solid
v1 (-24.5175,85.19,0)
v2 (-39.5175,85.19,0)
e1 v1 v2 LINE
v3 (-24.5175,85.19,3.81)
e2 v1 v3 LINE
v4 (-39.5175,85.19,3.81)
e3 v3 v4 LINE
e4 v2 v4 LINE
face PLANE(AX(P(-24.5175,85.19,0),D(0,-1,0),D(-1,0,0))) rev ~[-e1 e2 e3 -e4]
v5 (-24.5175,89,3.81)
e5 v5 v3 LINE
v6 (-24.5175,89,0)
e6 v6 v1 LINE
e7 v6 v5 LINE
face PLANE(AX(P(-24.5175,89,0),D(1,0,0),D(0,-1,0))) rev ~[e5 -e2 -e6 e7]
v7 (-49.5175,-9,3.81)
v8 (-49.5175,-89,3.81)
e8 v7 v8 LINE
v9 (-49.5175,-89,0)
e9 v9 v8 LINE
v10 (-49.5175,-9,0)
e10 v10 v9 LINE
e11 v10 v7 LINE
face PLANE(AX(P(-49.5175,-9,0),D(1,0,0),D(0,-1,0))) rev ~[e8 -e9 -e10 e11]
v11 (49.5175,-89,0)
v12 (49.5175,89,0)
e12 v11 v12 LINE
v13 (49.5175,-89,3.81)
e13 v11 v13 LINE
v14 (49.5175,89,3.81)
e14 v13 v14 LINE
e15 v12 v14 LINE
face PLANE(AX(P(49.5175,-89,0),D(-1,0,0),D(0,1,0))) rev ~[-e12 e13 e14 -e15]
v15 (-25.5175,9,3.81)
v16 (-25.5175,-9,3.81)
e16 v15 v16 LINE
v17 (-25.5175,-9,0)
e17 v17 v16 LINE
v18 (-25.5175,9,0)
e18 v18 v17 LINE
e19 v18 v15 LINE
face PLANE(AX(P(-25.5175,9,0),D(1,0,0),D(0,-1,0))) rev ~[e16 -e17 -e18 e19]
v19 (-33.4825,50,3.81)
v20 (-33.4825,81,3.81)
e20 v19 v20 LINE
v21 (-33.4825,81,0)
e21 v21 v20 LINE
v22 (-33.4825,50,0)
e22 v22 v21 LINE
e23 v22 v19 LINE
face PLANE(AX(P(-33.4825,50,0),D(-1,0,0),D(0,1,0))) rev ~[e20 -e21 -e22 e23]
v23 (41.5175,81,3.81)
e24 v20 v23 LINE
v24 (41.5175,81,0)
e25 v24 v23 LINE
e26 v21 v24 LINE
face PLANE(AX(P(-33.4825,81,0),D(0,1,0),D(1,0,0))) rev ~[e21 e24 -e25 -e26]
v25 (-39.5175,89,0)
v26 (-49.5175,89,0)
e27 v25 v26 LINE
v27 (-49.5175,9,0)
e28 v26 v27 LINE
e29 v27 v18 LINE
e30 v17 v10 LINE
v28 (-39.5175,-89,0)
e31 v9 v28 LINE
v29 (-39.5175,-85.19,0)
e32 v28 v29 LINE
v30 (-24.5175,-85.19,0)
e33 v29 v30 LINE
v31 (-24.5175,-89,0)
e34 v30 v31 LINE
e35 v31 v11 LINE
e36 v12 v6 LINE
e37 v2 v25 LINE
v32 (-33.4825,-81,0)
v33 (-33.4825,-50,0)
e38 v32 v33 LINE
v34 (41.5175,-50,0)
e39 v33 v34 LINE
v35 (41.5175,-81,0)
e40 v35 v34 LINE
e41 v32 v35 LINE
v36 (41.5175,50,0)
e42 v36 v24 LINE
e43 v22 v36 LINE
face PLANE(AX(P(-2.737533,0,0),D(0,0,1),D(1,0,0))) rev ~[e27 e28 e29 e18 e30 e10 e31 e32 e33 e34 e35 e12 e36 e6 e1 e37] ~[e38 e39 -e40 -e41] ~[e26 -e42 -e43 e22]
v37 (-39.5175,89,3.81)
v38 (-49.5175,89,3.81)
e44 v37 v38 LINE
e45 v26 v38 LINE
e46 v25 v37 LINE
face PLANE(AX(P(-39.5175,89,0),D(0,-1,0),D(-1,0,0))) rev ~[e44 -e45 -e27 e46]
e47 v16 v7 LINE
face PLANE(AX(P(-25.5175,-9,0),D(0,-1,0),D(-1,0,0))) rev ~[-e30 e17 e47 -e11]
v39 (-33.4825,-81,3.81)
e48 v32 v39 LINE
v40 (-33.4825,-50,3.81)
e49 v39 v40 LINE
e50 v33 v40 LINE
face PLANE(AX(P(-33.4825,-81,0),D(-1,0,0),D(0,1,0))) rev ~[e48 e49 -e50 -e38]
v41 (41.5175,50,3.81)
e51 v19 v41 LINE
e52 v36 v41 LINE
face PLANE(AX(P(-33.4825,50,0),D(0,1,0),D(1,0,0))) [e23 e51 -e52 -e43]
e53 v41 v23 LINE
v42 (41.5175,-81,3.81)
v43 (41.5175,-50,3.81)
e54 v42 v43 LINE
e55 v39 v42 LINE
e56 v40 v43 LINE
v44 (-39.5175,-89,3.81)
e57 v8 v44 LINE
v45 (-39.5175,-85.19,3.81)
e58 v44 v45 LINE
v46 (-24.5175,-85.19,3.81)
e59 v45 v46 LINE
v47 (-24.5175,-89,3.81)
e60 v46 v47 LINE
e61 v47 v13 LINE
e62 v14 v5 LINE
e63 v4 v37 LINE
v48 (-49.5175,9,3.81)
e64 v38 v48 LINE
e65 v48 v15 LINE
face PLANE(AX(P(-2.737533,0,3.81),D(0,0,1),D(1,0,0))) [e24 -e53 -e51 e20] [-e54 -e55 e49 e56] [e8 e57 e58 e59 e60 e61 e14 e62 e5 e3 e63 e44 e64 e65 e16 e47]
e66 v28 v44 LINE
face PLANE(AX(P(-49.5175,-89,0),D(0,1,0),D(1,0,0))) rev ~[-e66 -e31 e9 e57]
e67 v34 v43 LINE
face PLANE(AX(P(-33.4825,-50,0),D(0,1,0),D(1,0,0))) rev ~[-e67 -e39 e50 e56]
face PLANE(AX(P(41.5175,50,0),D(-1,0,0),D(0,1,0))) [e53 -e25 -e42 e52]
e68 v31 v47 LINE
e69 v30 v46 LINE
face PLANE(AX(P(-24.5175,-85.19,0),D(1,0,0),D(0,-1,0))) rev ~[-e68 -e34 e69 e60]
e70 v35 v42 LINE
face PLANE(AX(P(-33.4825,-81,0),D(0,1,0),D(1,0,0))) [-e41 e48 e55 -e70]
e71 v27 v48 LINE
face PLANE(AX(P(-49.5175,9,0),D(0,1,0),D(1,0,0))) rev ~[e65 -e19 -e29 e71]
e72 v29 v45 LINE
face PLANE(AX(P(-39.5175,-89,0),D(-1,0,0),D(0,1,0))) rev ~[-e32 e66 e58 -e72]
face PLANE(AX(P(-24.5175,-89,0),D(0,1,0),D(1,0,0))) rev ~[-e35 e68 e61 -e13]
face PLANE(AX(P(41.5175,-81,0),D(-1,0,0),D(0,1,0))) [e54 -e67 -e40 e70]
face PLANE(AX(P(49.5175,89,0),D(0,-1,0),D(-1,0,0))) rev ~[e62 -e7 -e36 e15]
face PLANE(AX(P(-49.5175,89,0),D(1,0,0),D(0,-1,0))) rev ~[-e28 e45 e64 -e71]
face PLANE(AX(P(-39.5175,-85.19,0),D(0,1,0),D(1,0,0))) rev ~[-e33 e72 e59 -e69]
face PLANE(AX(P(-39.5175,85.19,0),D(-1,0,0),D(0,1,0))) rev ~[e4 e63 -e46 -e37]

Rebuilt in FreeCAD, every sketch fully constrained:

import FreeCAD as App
import Part
import Sketcher
from FreeCAD import Vector
Q = App.Units.Quantity


def add_polygon(sketch, points):
    """Adds a closed chain of lines whose ends are joined by coincident constraints."""
    first, n = sketch.GeometryCount, len(points)
    for a, b in zip(points, points[1:] + points[:1]):
        sketch.addGeometry(Part.LineSegment(App.Vector(*a, 0), App.Vector(*b, 0)), False)
    for i in range(n):
        sketch.addConstraint(Sketcher.Constraint("Coincident", first + i, 2, first + (i + 1) % n, 1))

doc = App.newDocument("Part")
body = doc.addObject("PartDesign::Body", "Body")

# Sketch on XY plane
sketch1 = body.newObject("Sketcher::SketchObject", "Sketch")
sketch1.AttachmentSupport = (doc.getObject("XY_Plane"), [""])
sketch1.MapMode = "FlatFace"
add_polygon(sketch1, [(49.5, 89), (-24.5, 89), (-24.5, 85.2), (-39.5, 85.2), (-39.5, 89), (-49.5, 89), (-49.5, 9), (-25.5, 9), (-25.5, -9), (-49.5, -9), (-49.5, -89), (-39.5, -89), (-39.5, -85.2), (-24.5, -85.2), (-24.5, -89), (49.5, -89)])  # lines 0-15
add_polygon(sketch1, [(41.5, -81), (-33.5, -81), (-33.5, -50), (41.5, -50)])  # lines 16-19
add_polygon(sketch1, [(41.5, 50), (-33.5, 50), (-33.5, 81), (41.5, 81)])  # lines 20-23
sketch1.addConstraint(Sketcher.Constraint("Horizontal", 0))
sketch1.addConstraint(Sketcher.Constraint("Vertical", 1))
sketch1.addConstraint(Sketcher.Constraint("Horizontal", 2))
sketch1.addConstraint(Sketcher.Constraint("Vertical", 3))
sketch1.addConstraint(Sketcher.Constraint("Horizontal", 4))
sketch1.addConstraint(Sketcher.Constraint("Vertical", 5))
sketch1.addConstraint(Sketcher.Constraint("Horizontal", 6))
sketch1.addConstraint(Sketcher.Constraint("Vertical", 7))
sketch1.addConstraint(Sketcher.Constraint("Horizontal", 8))
sketch1.addConstraint(Sketcher.Constraint("Vertical", 9))
sketch1.addConstraint(Sketcher.Constraint("Horizontal", 10))
sketch1.addConstraint(Sketcher.Constraint("Vertical", 11))
sketch1.addConstraint(Sketcher.Constraint("Horizontal", 12))
sketch1.addConstraint(Sketcher.Constraint("Vertical", 13))
sketch1.addConstraint(Sketcher.Constraint("Horizontal", 14))
sketch1.addConstraint(Sketcher.Constraint("Vertical", 15))
sketch1.addConstraint(Sketcher.Constraint("Horizontal", 16))
sketch1.addConstraint(Sketcher.Constraint("Vertical", 17))
sketch1.addConstraint(Sketcher.Constraint("Horizontal", 18))
sketch1.addConstraint(Sketcher.Constraint("Vertical", 19))
sketch1.addConstraint(Sketcher.Constraint("Horizontal", 20))
sketch1.addConstraint(Sketcher.Constraint("Vertical", 21))
sketch1.addConstraint(Sketcher.Constraint("Horizontal", 22))
sketch1.addConstraint(Sketcher.Constraint("Vertical", 23))
sketch1.addConstraint(Sketcher.Constraint("Symmetric", 4, 2, 14, 2, -1, 1))
sketch1.addConstraint(Sketcher.Constraint("Symmetric", 9, 2, 15, 2, -1, 1))
sketch1.addConstraint(Sketcher.Constraint("Symmetric", 3, 2, 10, 2, -1))
sketch1.addConstraint(Sketcher.Constraint("Symmetric", 1, 2, 12, 2, -1))
sketch1.addConstraint(Sketcher.Constraint("Symmetric", 17, 2, 20, 2, -1))
sketch1.addConstraint(Sketcher.Constraint("Symmetric", 19, 2, 22, 2, -1))
sketch1.addConstraint(Sketcher.Constraint("Equal", 5, 9))
sketch1.addConstraint(Sketcher.Constraint("DistanceX", 2, 2, 2, 1, Q("15 mm")))
sketch1.addConstraint(Sketcher.Constraint("DistanceX", 4, 2, 4, 1, Q("10 mm")))
sketch1.addConstraint(Sketcher.Constraint("DistanceX", 6, 1, 6, 2, Q("24 mm")))
sketch1.addConstraint(Sketcher.Constraint("DistanceX", 16, 2, 16, 1, Q("75 mm")))
sketch1.addConstraint(Sketcher.Constraint("DistanceY", 5, 2, 5, 1, Q("80 mm")))
sketch1.addConstraint(Sketcher.Constraint("DistanceY", 7, 2, 7, 1, Q("18 mm")))
sketch1.addConstraint(Sketcher.Constraint("DistanceY", 17, 1, 17, 2, Q("31 mm")))
sketch1.addConstraint(Sketcher.Constraint("DistanceY", 16, 2, -1, 1, Q("81 mm")))
sketch1.addConstraint(Sketcher.Constraint("DistanceX", 18, 2, 14, 2, Q("8 mm")))
sketch1.addConstraint(Sketcher.Constraint("DistanceY", 1, 2, 1, 1, Q("3.81 mm")))
sketch1.addConstraint(Sketcher.Constraint("DistanceX", 0, 2, 0, 1, Q("74.035 mm")))
pad1 = body.newObject("PartDesign::Pad", "Pad")
pad1.Profile = sketch1
pad1.Length = 3.81

doc.recompute()
